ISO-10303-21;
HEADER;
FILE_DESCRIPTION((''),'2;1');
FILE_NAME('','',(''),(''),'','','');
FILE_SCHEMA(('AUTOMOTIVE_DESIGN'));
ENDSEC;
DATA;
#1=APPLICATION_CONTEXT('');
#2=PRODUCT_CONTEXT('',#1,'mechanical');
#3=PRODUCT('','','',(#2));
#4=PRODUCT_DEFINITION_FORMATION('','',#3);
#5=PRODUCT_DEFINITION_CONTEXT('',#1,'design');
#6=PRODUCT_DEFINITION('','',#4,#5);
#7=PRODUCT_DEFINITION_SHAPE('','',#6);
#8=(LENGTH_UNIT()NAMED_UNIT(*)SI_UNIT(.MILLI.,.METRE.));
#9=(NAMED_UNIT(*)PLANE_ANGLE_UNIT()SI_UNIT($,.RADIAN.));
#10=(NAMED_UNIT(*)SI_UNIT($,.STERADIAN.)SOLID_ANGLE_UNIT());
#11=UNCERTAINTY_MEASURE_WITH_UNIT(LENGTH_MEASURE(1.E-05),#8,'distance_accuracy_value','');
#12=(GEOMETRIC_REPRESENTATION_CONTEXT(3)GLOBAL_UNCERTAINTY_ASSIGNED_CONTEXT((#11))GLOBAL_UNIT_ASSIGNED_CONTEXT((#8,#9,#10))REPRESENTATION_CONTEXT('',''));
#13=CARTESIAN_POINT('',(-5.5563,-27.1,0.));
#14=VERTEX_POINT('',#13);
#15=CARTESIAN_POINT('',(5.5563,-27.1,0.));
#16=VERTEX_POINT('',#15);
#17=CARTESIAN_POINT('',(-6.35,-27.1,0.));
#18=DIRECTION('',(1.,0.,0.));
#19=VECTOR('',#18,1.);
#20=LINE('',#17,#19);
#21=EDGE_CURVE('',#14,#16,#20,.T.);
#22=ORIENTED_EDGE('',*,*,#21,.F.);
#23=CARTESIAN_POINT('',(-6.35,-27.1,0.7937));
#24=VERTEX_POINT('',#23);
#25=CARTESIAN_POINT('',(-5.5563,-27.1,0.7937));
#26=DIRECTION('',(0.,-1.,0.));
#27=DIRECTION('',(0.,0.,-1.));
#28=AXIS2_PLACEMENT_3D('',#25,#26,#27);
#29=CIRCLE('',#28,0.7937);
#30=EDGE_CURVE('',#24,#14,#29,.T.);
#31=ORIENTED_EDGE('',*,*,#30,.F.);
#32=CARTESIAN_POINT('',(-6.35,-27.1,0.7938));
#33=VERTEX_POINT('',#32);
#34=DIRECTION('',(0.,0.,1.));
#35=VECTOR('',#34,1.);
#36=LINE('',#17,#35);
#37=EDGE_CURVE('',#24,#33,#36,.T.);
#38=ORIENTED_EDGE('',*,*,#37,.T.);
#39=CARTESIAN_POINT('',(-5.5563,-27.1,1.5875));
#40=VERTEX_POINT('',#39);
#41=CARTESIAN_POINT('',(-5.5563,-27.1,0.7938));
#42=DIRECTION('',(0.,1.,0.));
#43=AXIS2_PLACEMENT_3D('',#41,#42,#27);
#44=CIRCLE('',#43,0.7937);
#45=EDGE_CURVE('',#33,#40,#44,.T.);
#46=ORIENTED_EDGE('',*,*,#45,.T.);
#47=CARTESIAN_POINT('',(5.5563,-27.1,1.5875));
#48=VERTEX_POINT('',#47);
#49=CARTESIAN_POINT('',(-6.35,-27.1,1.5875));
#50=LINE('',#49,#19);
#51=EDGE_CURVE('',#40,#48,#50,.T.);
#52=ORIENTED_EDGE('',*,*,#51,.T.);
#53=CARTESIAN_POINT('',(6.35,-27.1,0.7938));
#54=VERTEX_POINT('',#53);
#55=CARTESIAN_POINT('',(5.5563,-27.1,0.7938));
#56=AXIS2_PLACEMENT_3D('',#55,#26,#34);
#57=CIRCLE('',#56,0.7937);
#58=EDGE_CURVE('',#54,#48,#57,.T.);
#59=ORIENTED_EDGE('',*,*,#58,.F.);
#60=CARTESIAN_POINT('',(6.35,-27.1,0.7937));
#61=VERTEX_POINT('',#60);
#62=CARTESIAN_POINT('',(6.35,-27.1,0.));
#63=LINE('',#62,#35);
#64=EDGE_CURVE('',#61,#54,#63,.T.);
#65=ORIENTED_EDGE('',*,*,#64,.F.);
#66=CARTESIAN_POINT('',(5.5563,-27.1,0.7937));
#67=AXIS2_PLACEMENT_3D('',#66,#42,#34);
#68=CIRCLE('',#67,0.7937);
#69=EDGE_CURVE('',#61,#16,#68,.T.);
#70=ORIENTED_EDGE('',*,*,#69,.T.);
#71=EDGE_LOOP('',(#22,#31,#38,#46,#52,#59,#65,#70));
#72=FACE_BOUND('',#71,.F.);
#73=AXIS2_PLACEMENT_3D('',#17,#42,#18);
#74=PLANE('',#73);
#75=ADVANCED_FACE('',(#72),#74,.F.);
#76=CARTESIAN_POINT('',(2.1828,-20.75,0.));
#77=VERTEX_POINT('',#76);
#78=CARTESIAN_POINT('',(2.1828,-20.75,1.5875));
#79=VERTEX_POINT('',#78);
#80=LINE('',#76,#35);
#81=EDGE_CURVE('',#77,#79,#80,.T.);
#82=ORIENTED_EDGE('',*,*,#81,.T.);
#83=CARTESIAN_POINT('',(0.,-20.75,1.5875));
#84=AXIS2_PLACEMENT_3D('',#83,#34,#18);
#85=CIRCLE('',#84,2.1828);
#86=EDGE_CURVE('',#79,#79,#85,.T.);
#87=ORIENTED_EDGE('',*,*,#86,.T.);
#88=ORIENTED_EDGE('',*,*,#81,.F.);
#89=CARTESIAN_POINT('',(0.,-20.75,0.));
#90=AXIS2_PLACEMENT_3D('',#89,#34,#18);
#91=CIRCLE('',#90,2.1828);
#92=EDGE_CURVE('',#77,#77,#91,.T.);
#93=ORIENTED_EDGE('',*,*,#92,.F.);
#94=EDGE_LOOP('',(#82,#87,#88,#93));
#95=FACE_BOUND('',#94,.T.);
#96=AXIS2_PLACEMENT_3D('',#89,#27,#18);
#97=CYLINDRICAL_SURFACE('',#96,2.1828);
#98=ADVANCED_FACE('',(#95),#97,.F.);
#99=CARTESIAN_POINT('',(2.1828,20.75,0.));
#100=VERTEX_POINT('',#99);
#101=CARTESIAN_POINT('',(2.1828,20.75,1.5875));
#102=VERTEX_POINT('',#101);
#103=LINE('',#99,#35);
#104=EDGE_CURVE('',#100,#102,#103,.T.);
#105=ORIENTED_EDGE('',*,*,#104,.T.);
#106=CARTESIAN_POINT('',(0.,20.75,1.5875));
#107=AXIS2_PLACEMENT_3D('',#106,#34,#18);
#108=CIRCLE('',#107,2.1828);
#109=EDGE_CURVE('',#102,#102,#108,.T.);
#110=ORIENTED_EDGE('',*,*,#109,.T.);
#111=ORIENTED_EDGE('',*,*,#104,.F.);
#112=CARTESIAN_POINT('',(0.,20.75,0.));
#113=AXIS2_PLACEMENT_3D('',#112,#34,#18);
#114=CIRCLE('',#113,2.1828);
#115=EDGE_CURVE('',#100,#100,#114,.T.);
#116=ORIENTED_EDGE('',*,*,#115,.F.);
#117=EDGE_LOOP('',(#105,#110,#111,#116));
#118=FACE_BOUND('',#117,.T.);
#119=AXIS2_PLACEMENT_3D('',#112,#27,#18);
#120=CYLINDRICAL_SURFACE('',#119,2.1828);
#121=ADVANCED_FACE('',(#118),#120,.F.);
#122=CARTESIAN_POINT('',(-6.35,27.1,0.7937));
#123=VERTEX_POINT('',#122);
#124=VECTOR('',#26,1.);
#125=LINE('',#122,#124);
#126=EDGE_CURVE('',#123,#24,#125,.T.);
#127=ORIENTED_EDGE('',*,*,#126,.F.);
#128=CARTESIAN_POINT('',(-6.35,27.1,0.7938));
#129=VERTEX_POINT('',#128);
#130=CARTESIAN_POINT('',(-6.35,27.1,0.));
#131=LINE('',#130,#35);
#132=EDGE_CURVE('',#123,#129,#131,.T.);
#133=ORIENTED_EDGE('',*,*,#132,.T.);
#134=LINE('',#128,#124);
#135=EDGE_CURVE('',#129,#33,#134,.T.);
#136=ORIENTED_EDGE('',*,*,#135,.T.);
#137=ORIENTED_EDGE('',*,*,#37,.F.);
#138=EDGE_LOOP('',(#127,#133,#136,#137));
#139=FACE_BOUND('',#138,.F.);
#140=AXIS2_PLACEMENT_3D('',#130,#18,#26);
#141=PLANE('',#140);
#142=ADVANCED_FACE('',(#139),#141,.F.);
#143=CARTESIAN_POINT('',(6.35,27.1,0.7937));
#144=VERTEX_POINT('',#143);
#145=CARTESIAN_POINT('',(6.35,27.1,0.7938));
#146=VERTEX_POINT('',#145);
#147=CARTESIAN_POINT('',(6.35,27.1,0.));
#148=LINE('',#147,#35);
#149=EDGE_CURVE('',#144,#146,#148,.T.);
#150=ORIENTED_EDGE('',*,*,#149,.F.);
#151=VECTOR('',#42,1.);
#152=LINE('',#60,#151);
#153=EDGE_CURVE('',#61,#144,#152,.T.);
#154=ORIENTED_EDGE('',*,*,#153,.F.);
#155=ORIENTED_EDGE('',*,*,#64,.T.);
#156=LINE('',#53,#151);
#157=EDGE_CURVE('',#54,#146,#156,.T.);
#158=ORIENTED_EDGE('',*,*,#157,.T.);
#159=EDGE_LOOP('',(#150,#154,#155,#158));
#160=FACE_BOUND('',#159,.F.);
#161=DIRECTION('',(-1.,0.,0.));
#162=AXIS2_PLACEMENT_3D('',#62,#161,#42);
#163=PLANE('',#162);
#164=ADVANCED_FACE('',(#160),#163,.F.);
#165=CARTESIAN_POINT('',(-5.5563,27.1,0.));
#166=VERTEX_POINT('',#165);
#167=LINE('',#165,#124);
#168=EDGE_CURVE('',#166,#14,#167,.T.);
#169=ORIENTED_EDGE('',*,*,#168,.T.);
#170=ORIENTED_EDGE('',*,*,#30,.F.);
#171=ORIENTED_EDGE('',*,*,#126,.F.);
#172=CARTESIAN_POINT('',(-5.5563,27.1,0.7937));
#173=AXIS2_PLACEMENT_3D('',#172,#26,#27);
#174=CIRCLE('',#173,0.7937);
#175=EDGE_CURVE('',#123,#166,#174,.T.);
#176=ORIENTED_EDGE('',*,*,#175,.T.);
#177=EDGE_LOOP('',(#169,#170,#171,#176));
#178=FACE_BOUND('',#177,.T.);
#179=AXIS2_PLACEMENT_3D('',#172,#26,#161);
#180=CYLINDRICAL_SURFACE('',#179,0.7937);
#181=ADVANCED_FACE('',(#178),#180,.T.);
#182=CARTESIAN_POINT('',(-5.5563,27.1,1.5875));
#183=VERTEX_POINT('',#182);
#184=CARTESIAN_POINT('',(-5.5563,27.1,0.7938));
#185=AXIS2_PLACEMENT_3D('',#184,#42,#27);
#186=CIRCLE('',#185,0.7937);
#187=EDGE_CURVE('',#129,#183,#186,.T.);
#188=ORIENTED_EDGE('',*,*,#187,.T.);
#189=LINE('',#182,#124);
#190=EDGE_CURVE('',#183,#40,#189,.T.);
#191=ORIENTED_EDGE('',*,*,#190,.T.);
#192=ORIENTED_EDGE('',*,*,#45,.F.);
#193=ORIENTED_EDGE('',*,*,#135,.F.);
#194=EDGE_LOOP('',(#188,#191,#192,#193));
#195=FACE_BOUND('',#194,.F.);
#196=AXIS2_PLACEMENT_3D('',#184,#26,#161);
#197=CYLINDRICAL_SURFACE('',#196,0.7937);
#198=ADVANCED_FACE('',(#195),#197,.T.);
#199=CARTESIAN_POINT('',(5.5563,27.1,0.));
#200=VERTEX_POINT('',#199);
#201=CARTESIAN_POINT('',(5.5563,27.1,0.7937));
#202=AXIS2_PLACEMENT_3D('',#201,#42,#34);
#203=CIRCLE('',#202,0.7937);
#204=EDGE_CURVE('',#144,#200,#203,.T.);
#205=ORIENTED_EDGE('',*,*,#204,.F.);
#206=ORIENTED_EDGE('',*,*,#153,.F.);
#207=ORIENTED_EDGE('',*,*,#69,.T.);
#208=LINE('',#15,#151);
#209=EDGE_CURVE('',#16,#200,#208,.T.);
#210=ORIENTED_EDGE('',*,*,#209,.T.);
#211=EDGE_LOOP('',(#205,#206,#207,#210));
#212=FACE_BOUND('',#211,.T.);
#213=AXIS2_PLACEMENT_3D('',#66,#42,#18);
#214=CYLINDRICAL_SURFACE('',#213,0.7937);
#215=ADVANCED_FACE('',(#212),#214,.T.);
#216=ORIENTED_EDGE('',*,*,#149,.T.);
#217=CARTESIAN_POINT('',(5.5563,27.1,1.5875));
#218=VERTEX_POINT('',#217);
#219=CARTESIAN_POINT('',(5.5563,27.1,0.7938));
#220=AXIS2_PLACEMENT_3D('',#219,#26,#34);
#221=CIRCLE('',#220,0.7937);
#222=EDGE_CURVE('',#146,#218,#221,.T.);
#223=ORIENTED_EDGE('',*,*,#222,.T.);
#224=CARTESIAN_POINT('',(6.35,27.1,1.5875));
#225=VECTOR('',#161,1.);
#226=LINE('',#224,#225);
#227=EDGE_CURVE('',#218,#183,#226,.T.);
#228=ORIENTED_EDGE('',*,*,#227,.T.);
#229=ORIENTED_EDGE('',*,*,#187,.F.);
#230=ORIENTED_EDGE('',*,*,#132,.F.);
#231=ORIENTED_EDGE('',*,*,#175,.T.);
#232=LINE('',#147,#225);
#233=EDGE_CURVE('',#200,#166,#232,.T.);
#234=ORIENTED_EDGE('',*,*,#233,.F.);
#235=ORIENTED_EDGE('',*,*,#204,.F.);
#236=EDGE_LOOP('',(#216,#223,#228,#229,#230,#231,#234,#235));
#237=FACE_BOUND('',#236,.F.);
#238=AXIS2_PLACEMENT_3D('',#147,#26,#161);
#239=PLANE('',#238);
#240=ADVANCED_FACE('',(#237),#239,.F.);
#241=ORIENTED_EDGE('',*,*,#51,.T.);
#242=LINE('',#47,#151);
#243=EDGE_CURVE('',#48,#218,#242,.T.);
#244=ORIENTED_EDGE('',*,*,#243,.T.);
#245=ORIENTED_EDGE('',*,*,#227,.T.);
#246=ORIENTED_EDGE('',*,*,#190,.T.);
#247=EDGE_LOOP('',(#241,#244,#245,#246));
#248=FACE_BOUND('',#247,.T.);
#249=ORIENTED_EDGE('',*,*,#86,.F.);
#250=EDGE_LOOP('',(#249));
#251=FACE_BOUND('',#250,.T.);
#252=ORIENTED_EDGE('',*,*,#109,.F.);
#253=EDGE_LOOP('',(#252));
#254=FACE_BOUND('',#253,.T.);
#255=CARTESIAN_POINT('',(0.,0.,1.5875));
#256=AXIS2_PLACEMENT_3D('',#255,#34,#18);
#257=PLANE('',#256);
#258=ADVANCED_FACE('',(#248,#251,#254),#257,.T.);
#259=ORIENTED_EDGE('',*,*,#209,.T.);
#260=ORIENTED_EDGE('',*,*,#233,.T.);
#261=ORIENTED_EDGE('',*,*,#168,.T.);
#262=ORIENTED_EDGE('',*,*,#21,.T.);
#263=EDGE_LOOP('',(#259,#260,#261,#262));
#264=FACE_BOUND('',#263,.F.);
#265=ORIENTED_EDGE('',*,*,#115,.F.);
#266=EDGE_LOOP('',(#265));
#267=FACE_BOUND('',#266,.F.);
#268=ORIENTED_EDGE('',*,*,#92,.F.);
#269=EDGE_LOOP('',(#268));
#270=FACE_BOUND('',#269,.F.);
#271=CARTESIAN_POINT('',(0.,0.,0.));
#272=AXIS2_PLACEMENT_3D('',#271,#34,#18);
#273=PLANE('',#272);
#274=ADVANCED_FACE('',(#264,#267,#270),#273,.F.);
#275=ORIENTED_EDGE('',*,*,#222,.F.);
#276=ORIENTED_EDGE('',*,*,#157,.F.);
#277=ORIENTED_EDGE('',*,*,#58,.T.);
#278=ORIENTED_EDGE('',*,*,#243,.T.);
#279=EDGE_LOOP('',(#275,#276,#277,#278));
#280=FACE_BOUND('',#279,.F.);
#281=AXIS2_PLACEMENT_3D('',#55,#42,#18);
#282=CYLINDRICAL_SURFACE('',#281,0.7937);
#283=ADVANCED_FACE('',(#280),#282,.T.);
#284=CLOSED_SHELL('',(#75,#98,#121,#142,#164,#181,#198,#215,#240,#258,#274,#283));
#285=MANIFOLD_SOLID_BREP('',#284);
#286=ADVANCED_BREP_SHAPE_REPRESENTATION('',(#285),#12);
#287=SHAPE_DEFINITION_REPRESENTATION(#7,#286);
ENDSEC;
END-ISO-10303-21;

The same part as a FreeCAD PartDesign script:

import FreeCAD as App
import Part
import Sketcher
Q = App.Units.Quantity


def edges_at(feature, points):
    """Names of the edges that pass closest to the given points."""
    edges = feature.Shape.Edges
    near = lambda p: min(range(len(edges)), key=lambda i: edges[i].distToShape(Part.Vertex(*p))[0])
    return sorted({f"Edge{near(p) + 1}" for p in points})


def add_polygon(sketch, points):
    """Adds a closed chain of lines whose ends are joined by coincident constraints."""
    first, n = sketch.GeometryCount, len(points)
    for a, b in zip(points, points[1:] + points[:1]):
        sketch.addGeometry(Part.LineSegment(App.Vector(*a, 0), App.Vector(*b, 0)), False)
    for i in range(n):
        sketch.addConstraint(Sketcher.Constraint("Coincident", first + i, 2, first + (i + 1) % n, 1))

doc = App.newDocument("Part")
body = doc.addObject("PartDesign::Body", "Body")

# Sketch on XY plane
sketch1 = doc.addObject("Sketcher::SketchObject", "Sketch")
body.addObject(sketch1)
sketch1.AttachmentSupport = (doc.XY_Plane, [""])
sketch1.MapMode = "FlatFace"
add_polygon(sketch1, [(-6.3, 27.1), (-6.3, -27.1), (6.3, -27.1), (6.3, 27.1)])  # lines 0-3
sketch1.addGeometry(Part.Circle(App.Vector(0, -20.8, 0), App.Vector(0, 0, 1), 2.2), False)  # 4
sketch1.addGeometry(Part.Circle(App.Vector(0, 20.8, 0), App.Vector(0, 0, 1), 2.2), False)  # 5
sketch1.addConstraint(Sketcher.Constraint("Vertical", 0))
sketch1.addConstraint(Sketcher.Constraint("Horizontal", 1))
sketch1.addConstraint(Sketcher.Constraint("Vertical", 2))
sketch1.addConstraint(Sketcher.Constraint("Horizontal", 3))
sketch1.addConstraint(Sketcher.Constraint("Equal", 4, 5))
sketch1.addConstraint(Sketcher.Constraint("Symmetric", 4, 3, 5, 3, -1, 1))
sketch1.addConstraint(Sketcher.Constraint("Symmetric", 0, 2, 2, 2, -1, 1))
sketch1.addConstraint(Sketcher.Constraint("PointOnObject", 4, 3, -2))
sketch1.addConstraint(Sketcher.Constraint("Diameter", 4, Q("0.171874 in")))
sketch1.addConstraint(Sketcher.Constraint("DistanceX", 1, 1, 1, 2, Q("0.5 in")))
sketch1.addConstraint(Sketcher.Constraint("DistanceY", 0, 2, 4, 3, Q("0.25 in")))
sketch1.addConstraint(Sketcher.Constraint("DistanceY", 4, 3, -1, 1, 20.75))
pad1 = doc.addObject("PartDesign::Pad", "Pad")
body.addObject(pad1)
pad1.Profile = sketch1
pad1.Length = Q("0.0625 in")
doc.recompute()

fillet = doc.addObject("PartDesign::Fillet", "Fillet")
body.addObject(fillet)
fillet.Base = (pad1, edges_at(pad1, [
    (-6.35, 0, 0),
    (-6.35, 0, 1.587),
    (6.35, 0, 0),
    (6.35, 0, 1.587),
]))
fillet.Radius = Q("0.031248 in")

doc.recompute()
